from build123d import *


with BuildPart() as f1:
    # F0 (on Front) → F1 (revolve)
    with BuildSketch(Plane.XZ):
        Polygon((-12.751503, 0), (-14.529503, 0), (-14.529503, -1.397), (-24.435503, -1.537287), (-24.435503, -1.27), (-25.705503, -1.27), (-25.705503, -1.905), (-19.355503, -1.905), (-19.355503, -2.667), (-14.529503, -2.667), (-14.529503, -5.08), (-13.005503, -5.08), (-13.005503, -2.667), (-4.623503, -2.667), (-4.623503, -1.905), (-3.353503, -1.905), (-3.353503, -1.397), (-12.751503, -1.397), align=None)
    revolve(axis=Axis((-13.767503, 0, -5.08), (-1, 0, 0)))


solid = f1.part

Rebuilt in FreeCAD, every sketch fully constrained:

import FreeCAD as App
import Part
import Sketcher
from FreeCAD import Vector
Q = App.Units.Quantity


def add_polygon(sketch, points):
    """Adds a closed chain of lines whose ends are joined by coincident constraints."""
    first, n = sketch.GeometryCount, len(points)
    for a, b in zip(points, points[1:] + points[:1]):
        sketch.addGeometry(Part.LineSegment(App.Vector(*a, 0), App.Vector(*b, 0)), False)
    for i in range(n):
        sketch.addConstraint(Sketcher.Constraint("Coincident", first + i, 2, first + (i + 1) % n, 1))

doc = App.newDocument("Part")
params = doc.addObject("Spreadsheet::Sheet", "Params")
for row, (alias, value) in enumerate([
    ("sketch1_width", "0.07 in"),
    ("sketch1_width2", "0.05 in"),
    ("sketch1_width3", "0.25 in"),
    ("sketch1_width4", "0.19 in"),
    ("sketch1_width5", "0.06 in"),
    ("revolution_angle", "360 deg"),
], start=1):
    params.set(f"A{row}", alias)
    params.set(f"B{row}", "=" + value)
    params.setAlias(f"B{row}", alias)

body = doc.addObject("PartDesign::Body", "Body")

# Sketch on XZ plane
sketch1 = body.newObject("Sketcher::SketchObject", "Sketch")
sketch1.AttachmentSupport = (doc.getObject("XZ_Plane"), [""])
sketch1.MapMode = "FlatFace"
add_polygon(sketch1, [(-12.75, 0), (-14.53, 0), (-14.53, -1.4), (-24.44, -1.54), (-24.44, -1.27), (-25.71, -1.27), (-25.71, -1.91), (-19.36, -1.91), (-19.36, -2.67), (-14.53, -2.67), (-14.53, -5.08), (-13.01, -5.08), (-13.01, -2.67), (-4.62, -2.67), (-4.62, -1.91), (-3.35, -1.91), (-3.35, -1.4), (-12.75, -1.4)])  # lines 0-17
sketch1.addGeometry(Part.LineSegment(Vector(-3.35, -5.08, 0), Vector(-25.71, -5.08, 0)), True)  # axis
sketch1.addConstraint(Sketcher.Constraint("Horizontal", 0))
sketch1.addConstraint(Sketcher.Constraint("Vertical", 1))
sketch1.addConstraint(Sketcher.Constraint("Vertical", 3))
sketch1.addConstraint(Sketcher.Constraint("Horizontal", 4))
sketch1.addConstraint(Sketcher.Constraint("Vertical", 5))
sketch1.addConstraint(Sketcher.Constraint("Horizontal", 6))
sketch1.addConstraint(Sketcher.Constraint("Vertical", 7))
sketch1.addConstraint(Sketcher.Constraint("Horizontal", 8))
sketch1.addConstraint(Sketcher.Constraint("Vertical", 9))
sketch1.addConstraint(Sketcher.Constraint("Horizontal", 10))
sketch1.addConstraint(Sketcher.Constraint("Vertical", 11))
sketch1.addConstraint(Sketcher.Constraint("Horizontal", 12))
sketch1.addConstraint(Sketcher.Constraint("Vertical", 13))
sketch1.addConstraint(Sketcher.Constraint("Horizontal", 14))
sketch1.addConstraint(Sketcher.Constraint("Vertical", 15))
sketch1.addConstraint(Sketcher.Constraint("Horizontal", 16))
sketch1.addConstraint(Sketcher.Constraint("Vertical", 17))
sketch1.addConstraint(Sketcher.Constraint("Horizontal", 18))
sketch1.addConstraint(Sketcher.Constraint("PointOnObject", 0, 2, -1))
sketch1.addConstraint(Sketcher.Constraint("Horizontal", 8, 2, 11, 2))
sketch1.addConstraint(Sketcher.Constraint("Horizontal", 6, 2, 13, 2))
sketch1.addConstraint(Sketcher.Constraint("Horizontal", 1, 2, 15, 2))
sketch1.addConstraint(Sketcher.Constraint("Horizontal", 10, 2, 18, 1))
sketch1.addConstraint(Sketcher.Constraint("Vertical", 1, 2, 8, 2))
sketch1.addConstraint(Sketcher.Constraint("Vertical", 15, 2, 18, 1))
sketch1.addConstraint(Sketcher.Constraint("Vertical", 5, 2, 18, 2))
sketch1.addConstraint(Sketcher.Constraint("Equal", 4, 14))
sketch1.addConstraint(Sketcher.Constraint("DistanceX", 0, 2, 0, 1, Q("0.07 in")))
sketch1.addConstraint(Sketcher.Constraint("DistanceX", 4, 2, 4, 1, Q("0.05 in")))
sketch1.addConstraint(Sketcher.Constraint("DistanceX", 6, 1, 6, 2, Q("0.25 in")))
sketch1.addConstraint(Sketcher.Constraint("DistanceX", 8, 1, 8, 2, Q("0.19 in")))
sketch1.addConstraint(Sketcher.Constraint("DistanceX", 10, 1, 10, 2, Q("0.06 in")))
sketch1.addConstraint(Sketcher.Constraint("DistanceX", 12, 1, 12, 2, Q("0.33 in")))
sketch1.addConstraint(Sketcher.Constraint("DistanceY", 7, 2, 7, 1, Q("0.03 in")))
sketch1.addConstraint(Sketcher.Constraint("DistanceY", 15, 1, 15, 2, Q("0.02 in")))
sketch1.addConstraint(Sketcher.Constraint("DistanceY", 9, 2, -1, 1, Q("0.2 in")))
sketch1.addConstraint(Sketcher.Constraint("DistanceY", 1, 2, 1, 1, Q("0.055 in")))
sketch1.addConstraint(Sketcher.Constraint("DistanceY", 5, 2, 5, 1, Q("0.025 in")))
sketch1.addConstraint(Sketcher.Constraint("DistanceY", 3, 1, 3, 2, Q("0.267287 mm")))
sketch1.addConstraint(Sketcher.Constraint("DistanceX", 0, 2, -1, 1, Q("14.529503 mm")))
sketch1.setExpression("Constraints[45]", "Params.sketch1_width")
sketch1.setExpression("Constraints[46]", "Params.sketch1_width2")
sketch1.setExpression("Constraints[47]", "Params.sketch1_width3")
sketch1.setExpression("Constraints[48]", "Params.sketch1_width4")
sketch1.setExpression("Constraints[49]", "Params.sketch1_width5")
revolution = body.newObject("PartDesign::Revolution", "Revolution")
revolution.Profile = sketch1
revolution.ReferenceAxis = (sketch1, ["Axis0"])
revolution.setExpression("Angle", "Params.revolution_angle")

doc.recompute()
